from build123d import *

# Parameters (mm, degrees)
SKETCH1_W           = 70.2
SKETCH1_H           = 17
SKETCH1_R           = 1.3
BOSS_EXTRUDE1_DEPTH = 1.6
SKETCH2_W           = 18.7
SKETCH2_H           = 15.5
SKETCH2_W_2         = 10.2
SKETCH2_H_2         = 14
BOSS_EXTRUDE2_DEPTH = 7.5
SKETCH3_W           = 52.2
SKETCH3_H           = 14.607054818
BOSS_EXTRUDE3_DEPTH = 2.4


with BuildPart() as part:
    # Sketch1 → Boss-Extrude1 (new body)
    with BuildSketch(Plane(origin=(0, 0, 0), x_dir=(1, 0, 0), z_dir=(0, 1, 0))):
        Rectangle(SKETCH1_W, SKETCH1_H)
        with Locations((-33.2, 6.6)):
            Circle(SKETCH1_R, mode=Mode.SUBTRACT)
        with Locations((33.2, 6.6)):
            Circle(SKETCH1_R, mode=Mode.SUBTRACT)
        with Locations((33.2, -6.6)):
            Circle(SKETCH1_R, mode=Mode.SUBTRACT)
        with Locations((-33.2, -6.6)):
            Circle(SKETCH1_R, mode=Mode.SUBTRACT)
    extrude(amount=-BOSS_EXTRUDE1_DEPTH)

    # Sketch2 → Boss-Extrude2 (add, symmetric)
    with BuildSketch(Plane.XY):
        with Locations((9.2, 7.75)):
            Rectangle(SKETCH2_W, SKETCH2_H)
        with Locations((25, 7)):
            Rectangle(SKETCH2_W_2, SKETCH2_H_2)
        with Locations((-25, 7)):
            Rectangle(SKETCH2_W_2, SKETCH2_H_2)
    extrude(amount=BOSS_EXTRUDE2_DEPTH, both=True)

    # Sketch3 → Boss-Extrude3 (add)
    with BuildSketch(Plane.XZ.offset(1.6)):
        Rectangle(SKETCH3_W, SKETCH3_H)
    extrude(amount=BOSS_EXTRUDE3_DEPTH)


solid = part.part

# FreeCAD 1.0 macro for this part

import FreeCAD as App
import Part
import Sketcher

V = App.Vector
Q = App.Units.Quantity


def add_polygon(sketch, points):
    """Adds a closed chain of lines whose ends are joined by coincident constraints."""
    first, n = sketch.GeometryCount, len(points)
    for a, b in zip(points, points[1:] + points[:1]):
        sketch.addGeometry(Part.LineSegment(App.Vector(*a, 0), App.Vector(*b, 0)), False)
    for i in range(n):
        sketch.addConstraint(Sketcher.Constraint("Coincident", first + i, 2, first + (i + 1) % n, 1))

doc = App.newDocument("Part")
body = doc.addObject("PartDesign::Body", "Body")

sketch1 = body.newObject("Sketcher::SketchObject", "Sketch")
sketch1.AttachmentSupport = (doc.getObject("XZ_Plane"), [""])
sketch1.MapMode = "FlatFace"
add_polygon(sketch1, [(-35.1, -8.5), (-35.1, 8.5), (35.1, 8.5), (35.1, -8.5)])
sketch1.addGeometry(Part.Circle(V(-33.2, 6.6, 0), V(0, 0, 1), 1.3), False)
sketch1.addGeometry(Part.Circle(V(33.2, 6.6, 0), V(0, 0, 1), 1.3), False)
sketch1.addGeometry(Part.Circle(V(-33.2, -6.6, 0), V(0, 0, 1), 1.3), False)
sketch1.addGeometry(Part.Circle(V(33.2, -6.6, 0), V(0, 0, 1), 1.3), False)
sketch1.addConstraint([
    Sketcher.Constraint("Vertical", 0),
    Sketcher.Constraint("Horizontal", 1),
    Sketcher.Constraint("Vertical", 2),
    Sketcher.Constraint("Horizontal", 3),
    Sketcher.Constraint("Equal", 4, 5),
    Sketcher.Constraint("Equal", 5, 6),
    Sketcher.Constraint("Equal", 6, 7),
    Sketcher.Constraint("Symmetric", 5, 3, 6, 3, -1, 1),
    Sketcher.Constraint("Symmetric", 4, 3, 7, 3, -1, 1),
    Sketcher.Constraint("Symmetric", 0, 2, 2, 2, -1, 1),
    Sketcher.Constraint("Symmetric", 4, 3, 5, 3, -2),
    Sketcher.Constraint("Diameter", 4, Q("2.6 mm")),
    Sketcher.Constraint("DistanceY", 0, 1, 0, 2, Q("17 mm")),
    Sketcher.Constraint("DistanceX", 1, 1, 1, 2, Q("70.2 mm")),
    Sketcher.Constraint("DistanceX", 4, 3, -1, 1, Q("33.2 mm")),
    Sketcher.Constraint("DistanceY", -1, 1, 4, 3, Q("6.6 mm")),
])
pad1 = body.newObject("PartDesign::Pad", "Pad")
pad1.Profile = sketch1
pad1.Length = 1.6

sketch2 = body.newObject("Sketcher::SketchObject", "Sketch001")
sketch2.AttachmentSupport = (doc.getObject("XY_Plane"), [""])
sketch2.MapMode = "FlatFace"
add_polygon(sketch2, [(0, 16), (0, 0), (19, 0), (19, 16)])
add_polygon(sketch2, [(20, 14), (20, 0), (30, 0), (30, 14)])
add_polygon(sketch2, [(-30, 14), (-30, 0), (-20, 0), (-20, 14)])
sketch2.addConstraint([
    Sketcher.Constraint("Vertical", 0),
    Sketcher.Constraint("Horizontal", 1),
    Sketcher.Constraint("Vertical", 2),
    Sketcher.Constraint("Horizontal", 3),
    Sketcher.Constraint("Vertical", 4),
    Sketcher.Constraint("Horizontal", 5),
    Sketcher.Constraint("Vertical", 6),
    Sketcher.Constraint("Horizontal", 7),
    Sketcher.Constraint("Vertical", 8),
    Sketcher.Constraint("Horizontal", 9),
    Sketcher.Constraint("Vertical", 10),
    Sketcher.Constraint("Horizontal", 11),
    Sketcher.Constraint("Symmetric", 5, 2, 8, 2, -1, 1),
    Sketcher.Constraint("Symmetric", 4, 2, 9, 2, -2),
    Sketcher.Constraint("PointOnObject", 0, 2, -1),
    Sketcher.Constraint("Horizontal", 7, 2, 10, 2),
    Sketcher.Constraint("DistanceY", 4, 2, 4, 1, Q("14 mm")),
    Sketcher.Constraint("DistanceX", 1, 1, 1, 2, Q("18.7 mm")),
    Sketcher.Constraint("DistanceX", 5, 1, 5, 2, Q("10.2 mm")),
    Sketcher.Constraint("DistanceY", 0, 2, 0, 1, Q("15.5 mm")),
    Sketcher.Constraint("DistanceX", 8, 2, 4, 2, Q("50 mm")),
    Sketcher.Constraint("DistanceX", 0, 2, -1, 1, Q("0.15 mm")),
])
pad2 = body.newObject("PartDesign::Pad", "Pad001")
pad2.Profile = sketch2
pad2.Length = 15
pad2.Midplane = True

sketch3 = body.newObject("Sketcher::SketchObject", "Sketch002")
sketch3.AttachmentSupport = (doc.getObject("XZ_Plane"), [""])
sketch3.MapMode = "FlatFace"
sketch3.AttachmentOffset = App.Placement(V(0, 0, 1.6), App.Rotation())
add_polygon(sketch3, [(-26, 7), (-26, -7), (26, -7), (26, 7)])
sketch3.addConstraint([
    Sketcher.Constraint("Vertical", 0),
    Sketcher.Constraint("Horizontal", 1),
    Sketcher.Constraint("Vertical", 2),
    Sketcher.Constraint("Horizontal", 3),
    Sketcher.Constraint("Symmetric", 0, 2, 2, 2, -1, 1),
    Sketcher.Constraint("DistanceX", 1, 1, 1, 2, Q("52.2 mm")),
    Sketcher.Constraint("DistanceY", 0, 2, 0, 1, Q("14.607055 mm")),
])
pad3 = body.newObject("PartDesign::Pad", "Pad002")
pad3.Profile = sketch3
pad3.Length = 2.4

doc.recompute()
